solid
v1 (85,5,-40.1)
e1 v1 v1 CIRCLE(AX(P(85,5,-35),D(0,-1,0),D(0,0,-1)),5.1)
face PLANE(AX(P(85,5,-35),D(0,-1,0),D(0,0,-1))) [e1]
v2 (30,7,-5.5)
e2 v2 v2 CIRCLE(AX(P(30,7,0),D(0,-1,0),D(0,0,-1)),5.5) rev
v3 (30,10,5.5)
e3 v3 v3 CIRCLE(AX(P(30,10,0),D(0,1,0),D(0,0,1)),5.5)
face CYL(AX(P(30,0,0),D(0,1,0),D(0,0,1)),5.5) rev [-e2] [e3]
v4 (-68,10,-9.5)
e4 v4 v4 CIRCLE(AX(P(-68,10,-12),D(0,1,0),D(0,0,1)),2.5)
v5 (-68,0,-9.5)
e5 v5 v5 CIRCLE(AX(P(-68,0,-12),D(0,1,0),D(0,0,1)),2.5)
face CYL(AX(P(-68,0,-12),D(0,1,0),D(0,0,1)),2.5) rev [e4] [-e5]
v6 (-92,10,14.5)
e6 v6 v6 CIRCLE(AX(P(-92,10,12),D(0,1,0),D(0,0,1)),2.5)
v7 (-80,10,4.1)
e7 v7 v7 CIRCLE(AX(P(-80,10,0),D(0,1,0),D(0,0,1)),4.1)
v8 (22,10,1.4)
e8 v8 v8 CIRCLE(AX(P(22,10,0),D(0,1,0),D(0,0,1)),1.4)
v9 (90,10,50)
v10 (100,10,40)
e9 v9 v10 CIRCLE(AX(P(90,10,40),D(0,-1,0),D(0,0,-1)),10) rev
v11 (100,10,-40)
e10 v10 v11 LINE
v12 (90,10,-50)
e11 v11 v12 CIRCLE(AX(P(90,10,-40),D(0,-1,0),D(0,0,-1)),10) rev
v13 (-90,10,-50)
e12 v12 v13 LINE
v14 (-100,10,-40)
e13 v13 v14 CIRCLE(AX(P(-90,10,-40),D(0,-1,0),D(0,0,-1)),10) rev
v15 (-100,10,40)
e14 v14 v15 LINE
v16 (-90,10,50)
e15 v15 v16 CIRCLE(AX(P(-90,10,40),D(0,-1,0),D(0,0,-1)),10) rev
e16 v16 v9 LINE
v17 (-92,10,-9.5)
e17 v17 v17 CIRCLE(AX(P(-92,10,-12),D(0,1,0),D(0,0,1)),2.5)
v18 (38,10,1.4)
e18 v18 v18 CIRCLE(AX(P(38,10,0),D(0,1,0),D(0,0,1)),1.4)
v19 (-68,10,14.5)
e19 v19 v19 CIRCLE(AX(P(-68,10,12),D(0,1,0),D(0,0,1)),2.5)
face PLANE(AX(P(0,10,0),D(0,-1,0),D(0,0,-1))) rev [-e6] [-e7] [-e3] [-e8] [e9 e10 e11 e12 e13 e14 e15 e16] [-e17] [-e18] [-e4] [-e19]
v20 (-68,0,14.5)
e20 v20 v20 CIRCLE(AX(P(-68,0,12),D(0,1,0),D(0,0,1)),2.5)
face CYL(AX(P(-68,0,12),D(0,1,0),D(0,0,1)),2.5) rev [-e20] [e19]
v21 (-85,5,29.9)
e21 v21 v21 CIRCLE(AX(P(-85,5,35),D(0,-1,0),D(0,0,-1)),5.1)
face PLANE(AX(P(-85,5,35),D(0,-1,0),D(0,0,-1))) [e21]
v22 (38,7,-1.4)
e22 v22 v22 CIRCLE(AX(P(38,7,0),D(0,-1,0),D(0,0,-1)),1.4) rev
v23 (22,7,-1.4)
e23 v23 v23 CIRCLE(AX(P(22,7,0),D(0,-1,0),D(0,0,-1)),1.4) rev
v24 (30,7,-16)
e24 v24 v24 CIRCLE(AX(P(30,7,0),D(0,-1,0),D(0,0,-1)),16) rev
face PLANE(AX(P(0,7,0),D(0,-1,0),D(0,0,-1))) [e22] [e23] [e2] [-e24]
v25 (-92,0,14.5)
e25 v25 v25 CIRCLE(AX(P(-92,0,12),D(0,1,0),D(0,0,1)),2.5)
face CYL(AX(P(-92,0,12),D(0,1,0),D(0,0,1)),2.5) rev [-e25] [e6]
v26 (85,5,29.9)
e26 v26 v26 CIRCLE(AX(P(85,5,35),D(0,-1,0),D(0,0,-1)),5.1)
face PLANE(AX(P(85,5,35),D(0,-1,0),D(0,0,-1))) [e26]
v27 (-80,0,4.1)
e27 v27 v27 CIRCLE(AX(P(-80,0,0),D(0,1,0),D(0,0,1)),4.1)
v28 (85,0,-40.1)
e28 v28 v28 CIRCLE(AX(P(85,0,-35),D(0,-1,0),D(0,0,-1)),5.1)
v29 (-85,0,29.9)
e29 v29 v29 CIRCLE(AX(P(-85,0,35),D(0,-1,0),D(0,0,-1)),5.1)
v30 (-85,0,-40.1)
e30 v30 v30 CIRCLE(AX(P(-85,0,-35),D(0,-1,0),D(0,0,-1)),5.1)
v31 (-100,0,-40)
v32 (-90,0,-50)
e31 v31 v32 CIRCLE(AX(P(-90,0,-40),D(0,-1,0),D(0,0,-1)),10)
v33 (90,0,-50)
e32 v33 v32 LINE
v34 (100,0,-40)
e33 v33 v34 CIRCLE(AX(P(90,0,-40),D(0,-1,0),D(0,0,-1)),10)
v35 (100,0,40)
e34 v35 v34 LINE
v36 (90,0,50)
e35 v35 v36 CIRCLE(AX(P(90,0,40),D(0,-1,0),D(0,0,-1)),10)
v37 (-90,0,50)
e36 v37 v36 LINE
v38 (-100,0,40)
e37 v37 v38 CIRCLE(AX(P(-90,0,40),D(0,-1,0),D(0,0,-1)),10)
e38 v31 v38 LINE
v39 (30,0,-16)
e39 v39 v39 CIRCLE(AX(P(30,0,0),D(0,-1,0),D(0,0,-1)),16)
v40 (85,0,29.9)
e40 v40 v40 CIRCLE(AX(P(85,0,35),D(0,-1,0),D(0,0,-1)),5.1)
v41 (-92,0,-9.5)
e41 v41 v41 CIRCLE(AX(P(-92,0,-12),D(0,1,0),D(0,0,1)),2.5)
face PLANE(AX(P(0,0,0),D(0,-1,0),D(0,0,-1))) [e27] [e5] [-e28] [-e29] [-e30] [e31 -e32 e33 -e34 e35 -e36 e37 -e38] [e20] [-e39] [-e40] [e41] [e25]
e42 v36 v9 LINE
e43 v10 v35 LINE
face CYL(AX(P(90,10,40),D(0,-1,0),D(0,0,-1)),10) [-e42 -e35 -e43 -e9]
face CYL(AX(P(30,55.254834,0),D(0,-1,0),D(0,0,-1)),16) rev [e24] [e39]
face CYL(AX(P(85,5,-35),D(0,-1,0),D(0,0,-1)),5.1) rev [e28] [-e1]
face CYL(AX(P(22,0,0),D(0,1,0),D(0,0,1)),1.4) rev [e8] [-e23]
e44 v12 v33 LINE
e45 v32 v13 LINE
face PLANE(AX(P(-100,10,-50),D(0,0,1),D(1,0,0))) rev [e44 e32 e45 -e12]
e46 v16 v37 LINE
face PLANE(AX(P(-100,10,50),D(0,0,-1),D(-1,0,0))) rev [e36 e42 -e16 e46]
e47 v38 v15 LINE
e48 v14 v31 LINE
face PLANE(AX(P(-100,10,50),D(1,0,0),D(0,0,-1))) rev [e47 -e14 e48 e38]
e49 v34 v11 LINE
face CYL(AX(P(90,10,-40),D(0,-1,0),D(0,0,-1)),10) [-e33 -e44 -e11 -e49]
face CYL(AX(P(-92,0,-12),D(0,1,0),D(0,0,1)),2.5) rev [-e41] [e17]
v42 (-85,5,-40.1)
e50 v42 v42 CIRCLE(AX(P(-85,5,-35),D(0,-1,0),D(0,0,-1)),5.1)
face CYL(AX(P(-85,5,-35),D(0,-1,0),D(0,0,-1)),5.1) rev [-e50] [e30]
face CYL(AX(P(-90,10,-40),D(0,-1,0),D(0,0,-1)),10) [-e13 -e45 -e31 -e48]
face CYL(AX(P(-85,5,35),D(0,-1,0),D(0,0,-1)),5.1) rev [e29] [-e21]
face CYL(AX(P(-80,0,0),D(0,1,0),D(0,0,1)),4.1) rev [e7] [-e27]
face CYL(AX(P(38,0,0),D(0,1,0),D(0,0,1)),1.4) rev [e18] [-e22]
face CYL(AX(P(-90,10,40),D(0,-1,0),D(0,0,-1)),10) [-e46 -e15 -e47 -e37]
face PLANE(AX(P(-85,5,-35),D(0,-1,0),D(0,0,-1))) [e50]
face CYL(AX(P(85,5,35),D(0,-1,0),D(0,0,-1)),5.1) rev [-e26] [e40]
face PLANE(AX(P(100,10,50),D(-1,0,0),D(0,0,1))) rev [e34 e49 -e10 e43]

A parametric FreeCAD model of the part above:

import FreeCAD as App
import Part
import Sketcher
from FreeCAD import Vector


def edges_at(feature, points):
    """Names of the edges that pass closest to the given points."""
    edges = feature.Shape.Edges
    near = lambda p: min(range(len(edges)), key=lambda i: edges[i].distToShape(Part.Vertex(*p))[0])
    return sorted({f"Edge{near(p) + 1}" for p in points})


def add_polygon(sketch, points):
    """Adds a closed chain of lines whose ends are joined by coincident constraints."""
    first, n = sketch.GeometryCount, len(points)
    for a, b in zip(points, points[1:] + points[:1]):
        sketch.addGeometry(Part.LineSegment(App.Vector(*a, 0), App.Vector(*b, 0)), False)
    for i in range(n):
        sketch.addConstraint(Sketcher.Constraint("Coincident", first + i, 2, first + (i + 1) % n, 1))

doc = App.newDocument("Part")
body = doc.addObject("PartDesign::Body", "Body")

# Sketch on XZ plane
sketch1 = doc.addObject("Sketcher::SketchObject", "Sketch")
body.addObject(sketch1)
sketch1.AttachmentSupport = (doc.XZ_Plane, [""])
sketch1.MapMode = "FlatFace"
add_polygon(sketch1, [(-100, -50), (-100, 50), (100, 50), (100, -50)])  # lines 0-3
sketch1.addConstraint([
    Sketcher.Constraint("Vertical", 0),
    Sketcher.Constraint("Horizontal", 1),
    Sketcher.Constraint("Vertical", 2),
    Sketcher.Constraint("Horizontal", 3),
    Sketcher.Constraint("Symmetric", 0, 2, 2, 2, -1, 1),
    Sketcher.Constraint("DistanceX", 1, 1, 1, 2, 200.0),
    Sketcher.Constraint("DistanceY", 0, 1, 0, 2, 100.0),
])
pad1 = doc.addObject("PartDesign::Pad", "Pad")
body.addObject(pad1)
pad1.Profile = sketch1
pad1.Length = 10
pad1.Reversed = True

# Sketch on XZ plane
sketch2 = doc.addObject("Sketcher::SketchObject", "Sketch001")
body.addObject(sketch2)
sketch2.AttachmentSupport = (doc.XZ_Plane, [""])
sketch2.MapMode = "FlatFace"
sketch2.AttachmentOffset = App.Placement(Vector(0, 0, -10), App.Rotation())
sketch2.addGeometry([
    Part.Circle(Vector(-92, -12, 0), Vector(0, 0, 1), 2.5),  # 0
    Part.Circle(Vector(-68, -12, 0), Vector(0, 0, 1), 2.5),  # 1
    Part.Circle(Vector(-92, 12, 0), Vector(0, 0, 1), 2.5),  # 2
    Part.Circle(Vector(-68, 12, 0), Vector(0, 0, 1), 2.5),  # 3
    Part.Circle(Vector(30, 0, 0), Vector(0, 0, 1), 5.5),  # 4
    Part.Circle(Vector(38, 0, 0), Vector(0, 0, 1), 1.4),  # 5
    Part.Circle(Vector(22, 0, 0), Vector(0, 0, 1), 1.4),  # 6
    Part.Circle(Vector(-80, 0, 0), Vector(0, 0, 1), 4.1),  # 7
], False)
sketch2.addConstraint([
    Sketcher.Constraint("Equal", 0, 1),
    Sketcher.Constraint("Equal", 1, 2),
    Sketcher.Constraint("Equal", 2, 3),
    Sketcher.Constraint("Equal", 5, 6),
    Sketcher.Constraint("Symmetric", 0, 3, 2, 3, -1),
    Sketcher.Constraint("Symmetric", 1, 3, 3, 3, -1),
    Sketcher.Constraint("PointOnObject", 4, 3, -1),
    Sketcher.Constraint("PointOnObject", 5, 3, -1),
    Sketcher.Constraint("PointOnObject", 6, 3, -1),
    Sketcher.Constraint("PointOnObject", 7, 3, -1),
    Sketcher.Constraint("Horizontal", 0, 3, 1, 3),
    Sketcher.Constraint("Diameter", 0, 5.0),
    Sketcher.Constraint("Diameter", 4, 11.0),
    Sketcher.Constraint("Diameter", 5, 2.8),
    Sketcher.Constraint("Diameter", 7, 8.2),
    Sketcher.Constraint("DistanceX", 0, 3, -1, 1, 92.0),
    Sketcher.Constraint("DistanceY", 0, 3, -1, 1, 12.0),
    Sketcher.Constraint("DistanceX", 1, 3, -1, 1, 68.0),
    Sketcher.Constraint("DistanceX", -1, 1, 4, 3, 30.0),
    Sketcher.Constraint("DistanceX", -1, 1, 5, 3, 38.0),
    Sketcher.Constraint("DistanceX", -1, 1, 6, 3, 22.0),
    Sketcher.Constraint("DistanceX", 7, 3, -1, 1, 80.0),
])
pocket1 = doc.addObject("PartDesign::Pocket", "Pocket")
body.addObject(pocket1)
pocket1.Profile = sketch2
pocket1.Type = "ThroughAll"
pocket1.Reversed = True

# Sketch on XZ plane
sketch3 = doc.addObject("Sketcher::SketchObject", "Sketch002")
body.addObject(sketch3)
sketch3.AttachmentSupport = (doc.XZ_Plane, [""])
sketch3.MapMode = "FlatFace"
sketch3.addGeometry(Part.Circle(Vector(30, 0, 0), Vector(0, 0, 1), 16), False)
sketch3.addConstraint([
    Sketcher.Constraint("PointOnObject", 0, 3, -1),
    Sketcher.Constraint("Diameter", 0, 32.0),
    Sketcher.Constraint("DistanceX", -1, 1, 0, 3, 30.0),
])
pocket2 = doc.addObject("PartDesign::Pocket", "Pocket001")
body.addObject(pocket2)
pocket2.Profile = sketch3
pocket2.Length = 7
doc.recompute()

fillet = doc.addObject("PartDesign::Fillet", "Fillet")
body.addObject(fillet)
fillet.Base = (pocket2, edges_at(pocket2, [
    (100, 5, 50),
    (-100, 5, 50),
    (-100, 5, -50),
    (100, 5, -50),
]))
fillet.Radius = 10

# Sketch on XZ plane
sketch4 = doc.addObject("Sketcher::SketchObject", "Sketch003")
body.addObject(sketch4)
sketch4.AttachmentSupport = (doc.XZ_Plane, [""])
sketch4.MapMode = "FlatFace"
sketch4.addGeometry([
    Part.Circle(Vector(-85, 35, 0), Vector(0, 0, 1), 5),
    Part.Circle(Vector(-85, -35, 0), Vector(0, 0, 1), 5),
    Part.Circle(Vector(85, -35, 0), Vector(0, 0, 1), 5),
    Part.Circle(Vector(85, 35, 0), Vector(0, 0, 1), 5),
], False)
sketch4.addConstraint([
    Sketcher.Constraint("Equal", 0, 1),
    Sketcher.Constraint("Equal", 1, 2),
    Sketcher.Constraint("Equal", 2, 3),
    Sketcher.Constraint("Symmetric", 0, 3, 2, 3, -1, 1),
    Sketcher.Constraint("Symmetric", 1, 3, 3, 3, -1, 1),
    Sketcher.Constraint("Symmetric", 1, 3, 2, 3, -2),
    Sketcher.Constraint("Diameter", 0, 10.2),
    Sketcher.Constraint("DistanceX", 0, 3, -1, 1, 85.0),
    Sketcher.Constraint("DistanceY", -1, 1, 0, 3, 35.0),
])
pocket3 = doc.addObject("PartDesign::Pocket", "Pocket002")
body.addObject(pocket3)
pocket3.Profile = sketch4
pocket3.Length = 5

doc.recompute()
